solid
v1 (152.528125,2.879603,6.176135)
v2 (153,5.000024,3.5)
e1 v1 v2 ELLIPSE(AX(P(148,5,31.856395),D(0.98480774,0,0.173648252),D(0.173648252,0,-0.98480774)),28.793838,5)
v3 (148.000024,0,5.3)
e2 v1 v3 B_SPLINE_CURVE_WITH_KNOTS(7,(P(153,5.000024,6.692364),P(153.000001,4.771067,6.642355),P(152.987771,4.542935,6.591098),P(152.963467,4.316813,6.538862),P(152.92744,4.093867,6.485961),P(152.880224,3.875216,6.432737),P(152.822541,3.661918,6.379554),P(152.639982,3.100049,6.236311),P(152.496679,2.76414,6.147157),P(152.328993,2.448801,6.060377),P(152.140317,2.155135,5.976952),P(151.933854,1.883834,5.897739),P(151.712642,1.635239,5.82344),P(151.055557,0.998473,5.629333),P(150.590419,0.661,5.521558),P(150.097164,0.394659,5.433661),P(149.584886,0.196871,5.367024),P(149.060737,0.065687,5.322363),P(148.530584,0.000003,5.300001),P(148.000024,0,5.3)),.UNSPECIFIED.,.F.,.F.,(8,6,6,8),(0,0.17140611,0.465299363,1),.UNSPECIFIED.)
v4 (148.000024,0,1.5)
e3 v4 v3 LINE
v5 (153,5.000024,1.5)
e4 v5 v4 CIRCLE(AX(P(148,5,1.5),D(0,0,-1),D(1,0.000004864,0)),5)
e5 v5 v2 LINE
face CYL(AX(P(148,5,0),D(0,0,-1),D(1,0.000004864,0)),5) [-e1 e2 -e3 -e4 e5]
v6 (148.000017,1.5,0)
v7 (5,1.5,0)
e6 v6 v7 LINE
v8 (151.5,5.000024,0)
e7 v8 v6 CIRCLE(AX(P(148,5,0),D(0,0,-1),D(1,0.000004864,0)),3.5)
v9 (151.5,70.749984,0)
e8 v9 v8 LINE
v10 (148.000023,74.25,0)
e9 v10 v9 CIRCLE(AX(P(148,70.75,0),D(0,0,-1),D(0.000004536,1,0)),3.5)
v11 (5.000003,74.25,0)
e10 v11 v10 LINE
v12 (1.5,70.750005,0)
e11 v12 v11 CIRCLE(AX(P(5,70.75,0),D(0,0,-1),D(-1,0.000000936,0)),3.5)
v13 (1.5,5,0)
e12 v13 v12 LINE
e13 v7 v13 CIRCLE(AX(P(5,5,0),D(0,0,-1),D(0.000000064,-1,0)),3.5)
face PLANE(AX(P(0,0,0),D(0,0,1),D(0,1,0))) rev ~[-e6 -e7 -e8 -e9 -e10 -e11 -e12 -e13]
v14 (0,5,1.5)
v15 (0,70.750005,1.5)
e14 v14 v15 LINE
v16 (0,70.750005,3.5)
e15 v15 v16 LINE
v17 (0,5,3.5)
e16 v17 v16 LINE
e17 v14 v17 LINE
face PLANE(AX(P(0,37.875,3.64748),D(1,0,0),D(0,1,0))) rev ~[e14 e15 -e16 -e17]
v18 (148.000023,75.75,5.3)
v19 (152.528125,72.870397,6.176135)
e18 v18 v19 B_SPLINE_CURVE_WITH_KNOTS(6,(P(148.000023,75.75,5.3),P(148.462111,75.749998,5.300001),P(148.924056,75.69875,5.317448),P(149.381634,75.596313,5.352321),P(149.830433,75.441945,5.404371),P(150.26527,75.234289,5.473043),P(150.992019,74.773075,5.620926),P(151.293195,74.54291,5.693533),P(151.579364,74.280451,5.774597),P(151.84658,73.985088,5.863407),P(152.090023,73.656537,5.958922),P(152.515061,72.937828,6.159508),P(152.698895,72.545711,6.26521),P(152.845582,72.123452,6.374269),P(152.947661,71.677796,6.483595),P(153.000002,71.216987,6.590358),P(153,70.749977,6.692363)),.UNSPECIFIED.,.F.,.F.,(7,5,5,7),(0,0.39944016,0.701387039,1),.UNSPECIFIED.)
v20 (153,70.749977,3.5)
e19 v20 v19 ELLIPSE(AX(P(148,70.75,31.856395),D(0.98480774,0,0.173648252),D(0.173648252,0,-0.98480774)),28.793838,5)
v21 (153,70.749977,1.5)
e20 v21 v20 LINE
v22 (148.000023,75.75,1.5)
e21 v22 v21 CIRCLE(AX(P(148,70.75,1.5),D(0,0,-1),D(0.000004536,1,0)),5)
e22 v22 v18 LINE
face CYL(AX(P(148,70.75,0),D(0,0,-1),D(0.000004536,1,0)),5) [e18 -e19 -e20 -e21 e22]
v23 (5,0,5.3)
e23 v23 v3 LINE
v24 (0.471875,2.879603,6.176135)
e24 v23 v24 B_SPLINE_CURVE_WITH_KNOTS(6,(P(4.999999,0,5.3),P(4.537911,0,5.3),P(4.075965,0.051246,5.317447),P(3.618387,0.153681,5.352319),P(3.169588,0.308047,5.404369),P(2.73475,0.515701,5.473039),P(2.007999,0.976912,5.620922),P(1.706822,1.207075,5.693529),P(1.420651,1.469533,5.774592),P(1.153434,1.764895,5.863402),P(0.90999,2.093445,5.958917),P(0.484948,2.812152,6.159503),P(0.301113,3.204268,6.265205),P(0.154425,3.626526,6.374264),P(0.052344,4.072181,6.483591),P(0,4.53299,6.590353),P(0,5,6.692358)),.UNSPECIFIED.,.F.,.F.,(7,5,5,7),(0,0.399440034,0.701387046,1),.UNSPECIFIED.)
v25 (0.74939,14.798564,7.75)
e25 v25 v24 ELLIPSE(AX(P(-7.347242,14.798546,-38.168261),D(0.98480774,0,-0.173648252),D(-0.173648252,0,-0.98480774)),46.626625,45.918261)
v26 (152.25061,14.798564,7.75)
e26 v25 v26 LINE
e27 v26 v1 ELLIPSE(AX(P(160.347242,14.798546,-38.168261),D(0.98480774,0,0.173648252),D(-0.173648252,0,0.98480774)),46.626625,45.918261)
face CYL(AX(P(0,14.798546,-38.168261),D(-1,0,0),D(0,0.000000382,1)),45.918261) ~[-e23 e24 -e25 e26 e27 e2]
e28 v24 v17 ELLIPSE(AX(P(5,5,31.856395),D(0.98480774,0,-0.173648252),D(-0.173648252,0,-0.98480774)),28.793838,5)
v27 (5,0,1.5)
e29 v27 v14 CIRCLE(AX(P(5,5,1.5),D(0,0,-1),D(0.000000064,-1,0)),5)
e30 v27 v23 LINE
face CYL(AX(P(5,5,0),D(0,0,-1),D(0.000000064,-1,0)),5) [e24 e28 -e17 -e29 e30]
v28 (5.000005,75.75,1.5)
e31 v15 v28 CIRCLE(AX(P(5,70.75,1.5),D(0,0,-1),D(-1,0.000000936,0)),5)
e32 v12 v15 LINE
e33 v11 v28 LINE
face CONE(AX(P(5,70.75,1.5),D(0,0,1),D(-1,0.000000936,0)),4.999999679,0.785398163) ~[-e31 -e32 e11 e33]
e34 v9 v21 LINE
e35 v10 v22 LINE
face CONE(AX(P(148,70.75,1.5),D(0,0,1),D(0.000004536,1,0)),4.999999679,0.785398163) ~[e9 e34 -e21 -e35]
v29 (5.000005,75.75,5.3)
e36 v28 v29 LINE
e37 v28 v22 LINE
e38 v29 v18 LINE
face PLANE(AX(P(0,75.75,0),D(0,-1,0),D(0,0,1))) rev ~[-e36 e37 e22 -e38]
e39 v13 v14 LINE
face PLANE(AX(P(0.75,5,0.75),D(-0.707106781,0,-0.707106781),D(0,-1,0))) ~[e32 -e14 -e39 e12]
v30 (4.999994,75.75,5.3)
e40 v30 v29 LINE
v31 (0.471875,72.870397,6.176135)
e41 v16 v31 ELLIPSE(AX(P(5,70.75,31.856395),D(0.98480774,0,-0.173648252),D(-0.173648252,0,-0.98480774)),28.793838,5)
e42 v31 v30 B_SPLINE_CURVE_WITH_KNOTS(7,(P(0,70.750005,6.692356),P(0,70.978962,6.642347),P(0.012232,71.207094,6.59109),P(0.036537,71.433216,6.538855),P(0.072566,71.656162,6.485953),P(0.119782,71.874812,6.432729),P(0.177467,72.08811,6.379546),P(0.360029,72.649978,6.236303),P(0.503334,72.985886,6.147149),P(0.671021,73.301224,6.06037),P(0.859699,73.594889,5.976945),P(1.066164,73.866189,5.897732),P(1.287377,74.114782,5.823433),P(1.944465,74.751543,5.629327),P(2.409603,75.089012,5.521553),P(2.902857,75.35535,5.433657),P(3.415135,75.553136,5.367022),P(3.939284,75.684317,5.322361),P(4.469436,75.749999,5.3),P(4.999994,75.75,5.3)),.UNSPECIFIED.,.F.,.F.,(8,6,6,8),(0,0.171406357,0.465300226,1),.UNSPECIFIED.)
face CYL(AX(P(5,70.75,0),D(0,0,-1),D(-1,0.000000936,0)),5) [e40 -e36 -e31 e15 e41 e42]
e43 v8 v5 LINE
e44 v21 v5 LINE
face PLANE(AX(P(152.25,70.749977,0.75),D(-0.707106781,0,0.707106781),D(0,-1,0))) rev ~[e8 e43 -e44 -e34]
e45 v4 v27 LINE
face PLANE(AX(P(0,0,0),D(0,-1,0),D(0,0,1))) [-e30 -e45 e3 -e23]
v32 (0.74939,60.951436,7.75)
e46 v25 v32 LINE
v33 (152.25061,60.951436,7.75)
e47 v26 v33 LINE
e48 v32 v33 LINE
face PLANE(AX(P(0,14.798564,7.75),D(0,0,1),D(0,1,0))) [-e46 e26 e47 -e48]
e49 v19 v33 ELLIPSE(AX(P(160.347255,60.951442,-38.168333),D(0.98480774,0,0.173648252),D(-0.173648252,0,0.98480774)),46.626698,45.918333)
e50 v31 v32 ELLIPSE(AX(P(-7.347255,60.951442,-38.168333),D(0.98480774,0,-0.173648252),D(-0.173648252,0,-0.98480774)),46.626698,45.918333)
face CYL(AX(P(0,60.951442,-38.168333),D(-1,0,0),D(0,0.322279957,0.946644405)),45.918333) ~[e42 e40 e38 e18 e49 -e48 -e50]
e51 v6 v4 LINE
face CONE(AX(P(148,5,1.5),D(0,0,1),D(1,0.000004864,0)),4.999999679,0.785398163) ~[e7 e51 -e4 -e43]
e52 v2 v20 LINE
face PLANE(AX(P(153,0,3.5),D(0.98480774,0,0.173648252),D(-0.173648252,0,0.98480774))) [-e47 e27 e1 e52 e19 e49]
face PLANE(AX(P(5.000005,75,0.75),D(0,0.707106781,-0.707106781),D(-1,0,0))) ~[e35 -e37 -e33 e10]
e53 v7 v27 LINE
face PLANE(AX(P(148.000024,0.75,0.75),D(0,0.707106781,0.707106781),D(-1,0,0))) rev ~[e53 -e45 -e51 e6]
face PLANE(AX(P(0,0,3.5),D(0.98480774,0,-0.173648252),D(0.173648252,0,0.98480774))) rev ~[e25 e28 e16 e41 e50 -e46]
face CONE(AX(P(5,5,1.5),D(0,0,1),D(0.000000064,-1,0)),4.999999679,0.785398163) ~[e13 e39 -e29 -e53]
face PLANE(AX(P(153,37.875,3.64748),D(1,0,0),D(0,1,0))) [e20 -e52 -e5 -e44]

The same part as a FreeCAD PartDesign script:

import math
import FreeCAD as App
import Part
import Sketcher
Q = App.Units.Quantity


def edges_at(feature, points):
    """Names of the edges that pass closest to the given points."""
    edges = feature.Shape.Edges
    near = lambda p: min(range(len(edges)), key=lambda i: edges[i].distToShape(Part.Vertex(*p))[0])
    return sorted({f"Edge{near(p) + 1}" for p in points})


def add_polygon(sketch, points):
    """Adds a closed chain of lines whose ends are joined by coincident constraints."""
    first, n = sketch.GeometryCount, len(points)
    for a, b in zip(points, points[1:] + points[:1]):
        sketch.addGeometry(Part.LineSegment(App.Vector(*a, 0), App.Vector(*b, 0)), False)
    for i in range(n):
        sketch.addConstraint(Sketcher.Constraint("Coincident", first + i, 2, first + (i + 1) % n, 1))

doc = App.newDocument("Part")
params = doc.addObject("Spreadsheet::Sheet", "Params")
for row, (alias, value) in enumerate([
    ("sketch1_height", "5.3 mm"),
    ("sketch1_width", "75.75 mm"),
    ("pad1_length", "153 mm"),
    ("sketch2_radius", "5 mm"),
    ("chamfer_size", "1.5 mm"),
    ("sketch3_height", "4.25 mm"),
], start=1):
    params.set(f"A{row}", alias)
    params.set(f"B{row}", "=" + value)
    params.setAlias(f"B{row}", alias)

body = doc.addObject("PartDesign::Body", "Body")

sketch1 = body.newObject("Sketcher::SketchObject", "Sketch")
sketch1.AttachmentSupport = (doc.getObject("YZ_Plane"), [""])
sketch1.MapMode = "FlatFace"
sketch1.addGeometry(Part.LineSegment(App.Vector(0, 0, 0), App.Vector(76, 0, 0)), False)
sketch1.addGeometry(Part.LineSegment(App.Vector(76, 0, 0), App.Vector(76, 5, 0)), False)
sketch1.addGeometry(Part.ArcOfCircle(Part.Circle(App.Vector(61, -38, 0), App.Vector(0, 0, 1), 46), math.radians(71.2), math.radians(90)), False)
sketch1.addGeometry(Part.LineSegment(App.Vector(61, 8, 0), App.Vector(15, 8, 0)), False)
sketch1.addGeometry(Part.ArcOfCircle(Part.Circle(App.Vector(15, -38, 0), App.Vector(0, 0, 1), 46), math.radians(90), math.radians(108.8)), False)
sketch1.addGeometry(Part.LineSegment(App.Vector(0, 5, 0), App.Vector(0, 0, 0)), False)
sketch1.addConstraint(Sketcher.Constraint("Coincident", 0, 2, 1, 1))
sketch1.addConstraint(Sketcher.Constraint("Coincident", 1, 2, 2, 1))
sketch1.addConstraint(Sketcher.Constraint("Tangent", 2, 2, 3, 1))
sketch1.addConstraint(Sketcher.Constraint("Tangent", 3, 2, 4, 1))
sketch1.addConstraint(Sketcher.Constraint("Coincident", 4, 2, 5, 1))
sketch1.addConstraint(Sketcher.Constraint("Coincident", 5, 2, 0, 1))
sketch1.addConstraint(Sketcher.Constraint("Horizontal", 0))
sketch1.addConstraint(Sketcher.Constraint("Vertical", 1))
sketch1.addConstraint(Sketcher.Constraint("Horizontal", 3))
sketch1.addConstraint(Sketcher.Constraint("Vertical", 5))
sketch1.addConstraint(Sketcher.Constraint("Coincident", 5, 2, -1, 1))
sketch1.addConstraint(Sketcher.Constraint("Horizontal", 1, 2, 4, 2))
sketch1.addConstraint(Sketcher.Constraint("DistanceY", 1, 1, 1, 2, Q("5.3 mm")))
sketch1.addConstraint(Sketcher.Constraint("DistanceX", 0, 1, 0, 2, Q("75.75 mm")))
sketch1.addConstraint(Sketcher.Constraint("DistanceY", -1, 1, 2, 2, Q("7.75 mm")))
sketch1.addConstraint(Sketcher.Constraint("Radius", 4, Q("45.918261 mm")))
sketch1.addConstraint(Sketcher.Constraint("Radius", 2, Q("45.918333 mm")))
sketch1.setExpression("Constraints[12]", "Params.sketch1_height")
sketch1.setExpression("Constraints[13]", "Params.sketch1_width")
pad1 = body.newObject("PartDesign::Pad", "Pad")
pad1.Profile = sketch1
pad1.setExpression("Length", "Params.pad1_length")

sketch2 = body.newObject("Sketcher::SketchObject", "Sketch001")
sketch2.AttachmentSupport = (doc.getObject("XY_Plane"), [""])
sketch2.MapMode = "FlatFace"
sketch2.addGeometry(Part.LineSegment(App.Vector(153, 0, 0), App.Vector(148, 0, 0)), False)
sketch2.addGeometry(Part.ArcOfCircle(Part.Circle(App.Vector(148, 5, 0), App.Vector(0, 0, 1), 5), math.radians(-90), math.radians(0)), False)
sketch2.addGeometry(Part.LineSegment(App.Vector(153, 5, 0), App.Vector(153, 0, 0)), False)
sketch2.addGeometry(Part.LineSegment(App.Vector(153, 75.8, 0), App.Vector(153, 70.7, 0)), False)
sketch2.addGeometry(Part.ArcOfCircle(Part.Circle(App.Vector(148, 70.8, 0), App.Vector(0, 0, 1), 5), math.radians(0), math.radians(90)), False)
sketch2.addGeometry(Part.LineSegment(App.Vector(148, 75.8, 0), App.Vector(153, 75.8, 0)), False)
sketch2.addGeometry(Part.LineSegment(App.Vector(0, 75.8, 0), App.Vector(5, 75.8, 0)), False)
sketch2.addGeometry(Part.ArcOfCircle(Part.Circle(App.Vector(5, 70.8, 0), App.Vector(0, 0, 1), 5), math.radians(90), math.radians(180)), False)
sketch2.addGeometry(Part.LineSegment(App.Vector(0, 70.8, 0), App.Vector(0, 75.8, 0)), False)
sketch2.addGeometry(Part.LineSegment(App.Vector(0, 0, 0), App.Vector(0, 5, 0)), False)
sketch2.addGeometry(Part.ArcOfCircle(Part.Circle(App.Vector(5, 5, 0), App.Vector(0, 0, 1), 5), math.radians(180), math.radians(270)), False)
sketch2.addGeometry(Part.LineSegment(App.Vector(5, 0, 0), App.Vector(0, 0, 0)), False)
sketch2.addConstraint(Sketcher.Constraint("Coincident", 0, 2, 1, 1))
sketch2.addConstraint(Sketcher.Constraint("Coincident", 1, 2, 2, 1))
sketch2.addConstraint(Sketcher.Constraint("Coincident", 2, 2, 0, 1))
sketch2.addConstraint(Sketcher.Constraint("Coincident", 3, 2, 4, 1))
sketch2.addConstraint(Sketcher.Constraint("Coincident", 4, 2, 5, 1))
sketch2.addConstraint(Sketcher.Constraint("Coincident", 5, 2, 3, 1))
sketch2.addConstraint(Sketcher.Constraint("Tangent", 6, 2, 7, 1))
sketch2.addConstraint(Sketcher.Constraint("Tangent", 7, 2, 8, 1))
sketch2.addConstraint(Sketcher.Constraint("Coincident", 8, 2, 6, 1))
sketch2.addConstraint(Sketcher.Constraint("Tangent", 9, 2, 10, 1))
sketch2.addConstraint(Sketcher.Constraint("Tangent", 10, 2, 11, 1))
sketch2.addConstraint(Sketcher.Constraint("Coincident", 11, 2, 9, 1))
sketch2.addConstraint(Sketcher.Constraint("Horizontal", 0))
sketch2.addConstraint(Sketcher.Constraint("Vertical", 2))
sketch2.addConstraint(Sketcher.Constraint("Vertical", 3))
sketch2.addConstraint(Sketcher.Constraint("Horizontal", 5))
sketch2.addConstraint(Sketcher.Constraint("Horizontal", 6))
sketch2.addConstraint(Sketcher.Constraint("Vertical", 8))
sketch2.addConstraint(Sketcher.Constraint("Vertical", 9))
sketch2.addConstraint(Sketcher.Constraint("Horizontal", 11))
sketch2.addConstraint(Sketcher.Constraint("Coincident", 11, 2, -1, 1))
sketch2.addConstraint(Sketcher.Constraint("Equal", 1, 4))
sketch2.addConstraint(Sketcher.Constraint("Equal", 4, 7))
sketch2.addConstraint(Sketcher.Constraint("Equal", 7, 10))
sketch2.addConstraint(Sketcher.Constraint("PointOnObject", 0, 2, -1))
sketch2.addConstraint(Sketcher.Constraint("PointOnObject", 7, 2, -2))
sketch2.addConstraint(Sketcher.Constraint("Horizontal", 4, 3, 7, 3))
sketch2.addConstraint(Sketcher.Constraint("Vertical", 1, 3, 4, 3))
sketch2.addConstraint(Sketcher.Constraint("Vertical", 0, 2, 4, 2))
sketch2.addConstraint(Sketcher.Constraint("Equal", 2, 3))
sketch2.addConstraint(Sketcher.Constraint("Radius", 1, Q("5 mm")))
sketch2.addConstraint(Sketcher.Constraint("DistanceX", -1, 1, 1, 3, Q("148 mm")))
sketch2.addConstraint(Sketcher.Constraint("DistanceY", -1, 1, 4, 3, Q("70.75 mm")))
sketch2.addConstraint(Sketcher.Constraint("DistanceX", 0, 2, 0, 1, Q("4.999976 mm")))
sketch2.addConstraint(Sketcher.Constraint("DistanceY", 2, 2, 2, 1, Q("5.000024 mm")))
sketch2.setExpression("Constraints[30]", "Params.sketch2_radius")
pocket1 = body.newObject("PartDesign::Pocket", "Pocket")
pocket1.Profile = sketch2
pocket1.Type = "ThroughAll"
pocket1.Reversed = True
doc.recompute()

chamfer = body.newObject("PartDesign::Chamfer", "Chamfer")
chamfer.Base = (pocket1, edges_at(pocket1, [
    (1.464, 1.464, 0),
    (0, 37.875, 0),
    (1.464, 74.286, 0),
    (76.5, 75.75, 0),
    (151.536, 74.286, 0),
    (153, 37.875, 0),
    (151.536, 1.464, 0),
    (76.5, 0, 0),
]))
chamfer.setExpression("Size", "Params.chamfer_size")

sketch3 = body.newObject("Sketcher::SketchObject", "Sketch002")
sketch3.AttachmentSupport = (doc.getObject("XZ_Plane"), [""])
sketch3.MapMode = "FlatFace"
add_polygon(sketch3, [(0, 3.5), (0.7, 7.8), (0, 7.8)])
add_polygon(sketch3, [(152.3, 7.8), (153, 3.5), (153, 7.8)])
sketch3.addConstraint(Sketcher.Constraint("Horizontal", 1))
sketch3.addConstraint(Sketcher.Constraint("Vertical", 2))
sketch3.addConstraint(Sketcher.Constraint("Vertical", 4))
sketch3.addConstraint(Sketcher.Constraint("Horizontal", 5))
sketch3.addConstraint(Sketcher.Constraint("PointOnObject", 1, 2, -2))
sketch3.addConstraint(Sketcher.Constraint("Horizontal", 2, 2, 3, 2))
sketch3.addConstraint(Sketcher.Constraint("Horizontal", 1, 2, 4, 2))
sketch3.addConstraint(Sketcher.Constraint("Equal", 1, 5))
sketch3.addConstraint(Sketcher.Constraint("Angle", 0, Q("79.999996 deg")))
sketch3.addConstraint(Sketcher.Constraint("DistanceX", -1, 1, 3, 2, Q("153 mm")))
sketch3.addConstraint(Sketcher.Constraint("DistanceY", 2, 2, 2, 1, Q("4.25 mm")))
sketch3.addConstraint(Sketcher.Constraint("DistanceY", -1, 1, 2, 2, Q("3.5 mm")))
sketch3.setExpression("Constraints[16]", "Params.sketch3_height")
pocket2 = body.newObject("PartDesign::Pocket", "Pocket001")
pocket2.Profile = sketch3
pocket2.Type = "ThroughAll"

doc.recompute()
